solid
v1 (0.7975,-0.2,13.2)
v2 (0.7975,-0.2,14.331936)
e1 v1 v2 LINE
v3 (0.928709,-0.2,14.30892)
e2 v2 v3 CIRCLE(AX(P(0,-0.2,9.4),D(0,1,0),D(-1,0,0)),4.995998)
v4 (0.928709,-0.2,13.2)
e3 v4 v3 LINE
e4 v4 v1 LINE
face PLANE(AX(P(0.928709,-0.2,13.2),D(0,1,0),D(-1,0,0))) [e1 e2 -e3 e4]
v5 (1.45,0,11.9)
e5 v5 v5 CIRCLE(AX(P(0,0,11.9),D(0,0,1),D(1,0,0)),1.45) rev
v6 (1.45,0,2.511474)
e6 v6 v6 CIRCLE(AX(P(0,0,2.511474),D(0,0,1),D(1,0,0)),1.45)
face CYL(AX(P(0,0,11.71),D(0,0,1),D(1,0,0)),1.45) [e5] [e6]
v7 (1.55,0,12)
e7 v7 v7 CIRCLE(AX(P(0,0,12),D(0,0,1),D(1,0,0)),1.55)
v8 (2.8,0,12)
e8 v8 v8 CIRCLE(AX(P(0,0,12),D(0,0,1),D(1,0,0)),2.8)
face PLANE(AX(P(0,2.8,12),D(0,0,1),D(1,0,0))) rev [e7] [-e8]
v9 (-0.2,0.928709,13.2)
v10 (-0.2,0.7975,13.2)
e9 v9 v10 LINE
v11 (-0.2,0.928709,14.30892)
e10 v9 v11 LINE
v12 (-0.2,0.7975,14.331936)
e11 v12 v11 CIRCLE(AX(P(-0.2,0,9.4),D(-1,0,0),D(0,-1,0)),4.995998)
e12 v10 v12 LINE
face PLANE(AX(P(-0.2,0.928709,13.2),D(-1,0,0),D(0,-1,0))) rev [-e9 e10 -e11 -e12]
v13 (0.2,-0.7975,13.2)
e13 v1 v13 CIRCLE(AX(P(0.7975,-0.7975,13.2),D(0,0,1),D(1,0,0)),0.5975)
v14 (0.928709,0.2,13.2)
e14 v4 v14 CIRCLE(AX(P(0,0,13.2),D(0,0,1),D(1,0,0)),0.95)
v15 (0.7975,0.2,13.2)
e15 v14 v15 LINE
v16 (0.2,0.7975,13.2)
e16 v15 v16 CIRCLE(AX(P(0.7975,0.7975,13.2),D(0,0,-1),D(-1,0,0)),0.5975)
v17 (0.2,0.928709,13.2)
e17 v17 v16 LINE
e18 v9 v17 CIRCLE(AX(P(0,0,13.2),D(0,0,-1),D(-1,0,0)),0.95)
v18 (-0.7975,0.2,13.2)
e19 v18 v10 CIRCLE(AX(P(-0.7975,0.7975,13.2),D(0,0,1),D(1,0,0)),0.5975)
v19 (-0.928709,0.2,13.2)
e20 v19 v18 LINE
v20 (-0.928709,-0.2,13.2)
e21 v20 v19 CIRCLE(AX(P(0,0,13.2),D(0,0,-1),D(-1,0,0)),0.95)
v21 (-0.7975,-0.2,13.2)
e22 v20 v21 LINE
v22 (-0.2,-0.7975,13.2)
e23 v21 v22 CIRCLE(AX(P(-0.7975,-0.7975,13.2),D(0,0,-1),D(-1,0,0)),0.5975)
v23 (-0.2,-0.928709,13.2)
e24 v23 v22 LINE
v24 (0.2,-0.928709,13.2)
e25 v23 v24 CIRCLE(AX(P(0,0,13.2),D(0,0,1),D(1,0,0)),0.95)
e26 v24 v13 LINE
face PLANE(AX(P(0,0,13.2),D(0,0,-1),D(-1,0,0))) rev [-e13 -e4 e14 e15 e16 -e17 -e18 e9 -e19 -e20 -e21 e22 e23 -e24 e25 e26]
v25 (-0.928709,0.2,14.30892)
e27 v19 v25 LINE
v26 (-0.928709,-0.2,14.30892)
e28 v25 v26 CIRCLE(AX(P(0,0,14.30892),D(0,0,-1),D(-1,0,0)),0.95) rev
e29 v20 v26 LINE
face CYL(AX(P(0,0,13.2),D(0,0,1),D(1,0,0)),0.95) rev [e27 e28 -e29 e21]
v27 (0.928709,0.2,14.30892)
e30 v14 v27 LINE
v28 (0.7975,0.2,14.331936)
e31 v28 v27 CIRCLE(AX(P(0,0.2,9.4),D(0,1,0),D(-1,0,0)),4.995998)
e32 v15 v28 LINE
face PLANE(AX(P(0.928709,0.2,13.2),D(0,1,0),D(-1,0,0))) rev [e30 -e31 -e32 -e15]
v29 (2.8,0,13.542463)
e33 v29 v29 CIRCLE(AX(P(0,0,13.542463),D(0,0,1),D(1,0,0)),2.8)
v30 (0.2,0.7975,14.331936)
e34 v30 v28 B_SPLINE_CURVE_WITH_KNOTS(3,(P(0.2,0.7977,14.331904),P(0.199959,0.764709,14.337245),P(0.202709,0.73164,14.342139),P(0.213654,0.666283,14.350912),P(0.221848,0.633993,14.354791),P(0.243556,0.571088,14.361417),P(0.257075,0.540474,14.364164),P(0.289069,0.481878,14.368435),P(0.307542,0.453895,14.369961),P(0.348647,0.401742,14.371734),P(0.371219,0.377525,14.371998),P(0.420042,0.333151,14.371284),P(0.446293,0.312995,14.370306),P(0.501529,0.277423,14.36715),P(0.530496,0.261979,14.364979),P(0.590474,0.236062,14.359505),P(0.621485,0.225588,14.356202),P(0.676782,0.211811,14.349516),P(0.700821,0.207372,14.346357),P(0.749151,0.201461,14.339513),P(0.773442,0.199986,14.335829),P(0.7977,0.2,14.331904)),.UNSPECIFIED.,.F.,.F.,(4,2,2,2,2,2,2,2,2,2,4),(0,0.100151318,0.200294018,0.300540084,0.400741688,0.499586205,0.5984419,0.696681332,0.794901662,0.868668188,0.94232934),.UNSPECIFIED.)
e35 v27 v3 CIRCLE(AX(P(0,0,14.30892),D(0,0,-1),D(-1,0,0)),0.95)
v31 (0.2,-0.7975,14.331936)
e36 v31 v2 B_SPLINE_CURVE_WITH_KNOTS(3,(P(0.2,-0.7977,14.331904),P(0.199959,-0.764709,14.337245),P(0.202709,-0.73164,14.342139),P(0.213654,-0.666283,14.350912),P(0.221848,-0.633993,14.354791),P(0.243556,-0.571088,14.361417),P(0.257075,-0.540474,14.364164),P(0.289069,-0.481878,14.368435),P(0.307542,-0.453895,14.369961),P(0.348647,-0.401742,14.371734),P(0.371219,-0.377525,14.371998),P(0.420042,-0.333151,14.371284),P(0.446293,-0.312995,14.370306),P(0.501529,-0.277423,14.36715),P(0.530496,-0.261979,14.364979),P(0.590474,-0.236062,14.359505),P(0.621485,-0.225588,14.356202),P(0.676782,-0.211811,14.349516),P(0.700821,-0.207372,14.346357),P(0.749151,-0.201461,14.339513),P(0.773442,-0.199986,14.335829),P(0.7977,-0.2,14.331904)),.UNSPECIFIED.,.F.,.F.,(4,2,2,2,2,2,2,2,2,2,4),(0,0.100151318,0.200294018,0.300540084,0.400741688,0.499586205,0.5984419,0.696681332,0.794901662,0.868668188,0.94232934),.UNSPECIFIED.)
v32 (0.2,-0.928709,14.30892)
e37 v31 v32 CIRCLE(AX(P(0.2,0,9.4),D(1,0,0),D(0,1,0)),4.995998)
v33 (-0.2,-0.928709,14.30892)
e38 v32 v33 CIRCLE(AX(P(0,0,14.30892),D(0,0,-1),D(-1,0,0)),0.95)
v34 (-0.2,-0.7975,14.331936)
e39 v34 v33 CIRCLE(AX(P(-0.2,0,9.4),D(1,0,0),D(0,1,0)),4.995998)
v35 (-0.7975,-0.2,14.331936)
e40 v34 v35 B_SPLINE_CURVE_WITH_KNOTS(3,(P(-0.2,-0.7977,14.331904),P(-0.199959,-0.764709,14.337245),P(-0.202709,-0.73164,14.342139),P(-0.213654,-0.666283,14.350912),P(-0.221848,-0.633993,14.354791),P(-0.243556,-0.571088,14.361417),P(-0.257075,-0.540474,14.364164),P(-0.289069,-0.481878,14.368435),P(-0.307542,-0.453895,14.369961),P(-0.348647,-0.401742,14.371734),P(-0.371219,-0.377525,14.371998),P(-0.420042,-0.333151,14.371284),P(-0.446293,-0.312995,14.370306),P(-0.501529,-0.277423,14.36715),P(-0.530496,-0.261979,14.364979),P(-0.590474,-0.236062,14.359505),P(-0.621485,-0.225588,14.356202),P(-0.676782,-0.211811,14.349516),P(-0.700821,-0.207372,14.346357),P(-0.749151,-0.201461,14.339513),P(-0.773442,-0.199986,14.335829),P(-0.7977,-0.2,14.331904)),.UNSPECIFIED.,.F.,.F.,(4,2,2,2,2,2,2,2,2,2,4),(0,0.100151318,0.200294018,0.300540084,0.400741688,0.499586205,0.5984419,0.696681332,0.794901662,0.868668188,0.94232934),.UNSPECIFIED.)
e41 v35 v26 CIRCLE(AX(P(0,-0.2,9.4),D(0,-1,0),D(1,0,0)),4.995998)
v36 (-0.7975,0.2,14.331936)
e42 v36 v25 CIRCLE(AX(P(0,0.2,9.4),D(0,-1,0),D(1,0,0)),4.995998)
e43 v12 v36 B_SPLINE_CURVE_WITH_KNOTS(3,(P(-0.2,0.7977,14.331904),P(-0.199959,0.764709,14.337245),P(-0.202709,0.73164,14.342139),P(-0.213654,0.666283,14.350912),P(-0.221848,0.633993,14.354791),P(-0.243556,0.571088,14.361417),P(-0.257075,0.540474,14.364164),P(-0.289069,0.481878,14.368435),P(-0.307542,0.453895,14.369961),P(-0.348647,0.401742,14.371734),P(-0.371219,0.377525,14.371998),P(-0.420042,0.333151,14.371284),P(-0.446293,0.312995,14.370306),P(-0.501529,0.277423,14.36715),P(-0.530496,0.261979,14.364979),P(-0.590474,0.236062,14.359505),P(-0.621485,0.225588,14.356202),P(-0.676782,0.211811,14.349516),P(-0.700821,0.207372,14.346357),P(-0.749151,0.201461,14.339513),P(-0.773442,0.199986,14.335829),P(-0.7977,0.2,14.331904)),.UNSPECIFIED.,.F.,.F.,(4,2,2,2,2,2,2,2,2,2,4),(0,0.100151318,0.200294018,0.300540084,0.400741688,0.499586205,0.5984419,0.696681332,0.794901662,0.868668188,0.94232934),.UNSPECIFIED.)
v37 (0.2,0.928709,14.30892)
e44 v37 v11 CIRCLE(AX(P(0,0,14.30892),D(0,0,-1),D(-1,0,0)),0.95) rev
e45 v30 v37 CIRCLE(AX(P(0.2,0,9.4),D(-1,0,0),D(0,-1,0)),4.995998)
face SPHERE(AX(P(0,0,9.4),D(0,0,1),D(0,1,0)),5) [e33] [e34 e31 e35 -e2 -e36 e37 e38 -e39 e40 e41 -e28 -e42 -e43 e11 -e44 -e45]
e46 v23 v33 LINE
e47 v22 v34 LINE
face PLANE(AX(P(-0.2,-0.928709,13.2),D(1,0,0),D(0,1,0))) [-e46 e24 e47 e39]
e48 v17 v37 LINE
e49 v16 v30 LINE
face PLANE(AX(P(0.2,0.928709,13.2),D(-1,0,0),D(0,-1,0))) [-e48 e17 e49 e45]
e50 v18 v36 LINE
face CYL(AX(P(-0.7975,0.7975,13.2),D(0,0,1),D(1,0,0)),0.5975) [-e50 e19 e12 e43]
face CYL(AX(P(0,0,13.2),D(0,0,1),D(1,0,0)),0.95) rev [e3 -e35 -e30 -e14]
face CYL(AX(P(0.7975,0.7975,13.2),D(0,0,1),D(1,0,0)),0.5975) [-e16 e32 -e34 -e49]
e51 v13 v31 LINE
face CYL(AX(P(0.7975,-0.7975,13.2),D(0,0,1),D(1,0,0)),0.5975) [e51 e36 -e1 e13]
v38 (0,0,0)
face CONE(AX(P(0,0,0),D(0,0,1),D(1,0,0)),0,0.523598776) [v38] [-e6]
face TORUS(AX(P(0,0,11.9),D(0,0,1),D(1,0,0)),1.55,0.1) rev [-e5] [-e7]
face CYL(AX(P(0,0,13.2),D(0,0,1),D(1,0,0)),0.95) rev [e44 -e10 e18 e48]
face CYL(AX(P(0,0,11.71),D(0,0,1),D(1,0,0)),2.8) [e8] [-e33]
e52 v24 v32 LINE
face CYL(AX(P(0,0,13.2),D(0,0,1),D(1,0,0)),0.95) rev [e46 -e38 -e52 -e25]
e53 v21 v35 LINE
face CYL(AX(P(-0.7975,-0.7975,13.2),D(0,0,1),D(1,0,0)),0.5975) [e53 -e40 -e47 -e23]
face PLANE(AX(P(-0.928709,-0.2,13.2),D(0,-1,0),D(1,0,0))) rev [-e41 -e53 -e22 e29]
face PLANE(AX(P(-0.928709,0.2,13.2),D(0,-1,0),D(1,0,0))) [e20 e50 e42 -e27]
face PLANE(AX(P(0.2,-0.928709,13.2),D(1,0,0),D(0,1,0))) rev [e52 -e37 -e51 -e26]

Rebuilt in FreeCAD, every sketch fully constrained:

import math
import FreeCAD as App
import Part
import Sketcher

V = App.Vector
Q = App.Units.Quantity


def edges_at(feature, points):
    """Names of the edges that pass closest to the given points."""
    edges = feature.Shape.Edges
    near = lambda p: min(range(len(edges)), key=lambda i: edges[i].distToShape(Part.Vertex(*p))[0])
    return sorted({f"Edge{near(p) + 1}" for p in points})

doc = App.newDocument("Part")
params = doc.addObject("Spreadsheet::Sheet", "Params")
for row, (alias, value) in enumerate([
    ("sketch1_radius", "5 mm"),
    ("sketch1_height", "14.4 mm"),
    ("sketch1_length", "2.9 mm"),
    ("sketch1_width", "1.35 mm"),
    ("revolution_angle", "360 deg"),
    ("sketch2_radius", "0.95 mm"),
    ("pocket1_length", "1.2 mm"),
    ("fillet_radius", "0.1 mm"),
], start=1):
    params.set(f"A{row}", alias)
    params.set(f"B{row}", "=" + value)
    params.setAlias(f"B{row}", alias)

body = doc.addObject("PartDesign::Body", "Body")

# Sketch on YZ plane
sketch1 = doc.addObject("Sketcher::SketchObject", "Sketch")
body.addObject(sketch1)
sketch1.AttachmentSupport = (doc.YZ_Plane, [""])
sketch1.MapMode = "FlatFace"
sketch1.addGeometry(Part.LineSegment(V(0, 14.4, 0), V(0, 0, 0)), False)
sketch1.addGeometry(Part.LineSegment(V(0, 0, 0), V(1.4, 2.5, 0)), False)
sketch1.addGeometry(Part.LineSegment(V(1.4, 2.5, 0), V(1.4, 12, 0)), False)
sketch1.addGeometry(Part.LineSegment(V(1.4, 12, 0), V(2.8, 12, 0)), False)
sketch1.addGeometry(Part.LineSegment(V(2.8, 12, 0), V(2.8, 13.5, 0)), False)
sketch1.addGeometry(Part.ArcOfCircle(Part.Circle(V(0, 9.4, 0), V(0, 0, 1), 5), math.radians(56), math.radians(90)), False)
sketch1.addConstraint(Sketcher.Constraint("Coincident", 0, 2, 1, 1))
sketch1.addConstraint(Sketcher.Constraint("Coincident", 1, 2, 2, 1))
sketch1.addConstraint(Sketcher.Constraint("Coincident", 2, 2, 3, 1))
sketch1.addConstraint(Sketcher.Constraint("Coincident", 3, 2, 4, 1))
sketch1.addConstraint(Sketcher.Constraint("Coincident", 4, 2, 5, 1))
sketch1.addConstraint(Sketcher.Constraint("Coincident", 5, 2, 0, 1))
sketch1.addConstraint(Sketcher.Constraint("Vertical", 0))
sketch1.addConstraint(Sketcher.Constraint("Vertical", 2))
sketch1.addConstraint(Sketcher.Constraint("Horizontal", 3))
sketch1.addConstraint(Sketcher.Constraint("Vertical", 4))
sketch1.addConstraint(Sketcher.Constraint("Coincident", 0, 2, -1, 1))
sketch1.addConstraint(Sketcher.Constraint("PointOnObject", 5, 3, -2))
sketch1.addConstraint(Sketcher.Constraint("Radius", 5, Q("5 mm")))
sketch1.addConstraint(Sketcher.Constraint("Angle", 1, Q("60 deg")))
sketch1.addConstraint(Sketcher.Constraint("DistanceY", 0, 2, 0, 1, Q("14.4 mm")))
sketch1.addConstraint(Sketcher.Constraint("DistanceY", -1, 1, 2, 2, Q("12 mm")))
sketch1.addConstraint(Sketcher.Constraint("Distance", 1, Q("2.9 mm")))
sketch1.addConstraint(Sketcher.Constraint("DistanceX", 3, 1, 3, 2, Q("1.35 mm")))
sketch1.setExpression("Constraints[12]", "Params.sketch1_radius")
sketch1.setExpression("Constraints[14]", "Params.sketch1_height")
sketch1.setExpression("Constraints[16]", "Params.sketch1_length")
sketch1.setExpression("Constraints[17]", "Params.sketch1_width")
revolution = doc.addObject("PartDesign::Revolution", "Revolution")
body.addObject(revolution)
revolution.Profile = sketch1
revolution.ReferenceAxis = (sketch1, ["V_Axis"])
revolution.setExpression("Angle", "Params.revolution_angle")

# Sketch on XY plane
sketch2 = doc.addObject("Sketcher::SketchObject", "Sketch001")
body.addObject(sketch2)
sketch2.AttachmentSupport = (doc.XY_Plane, [""])
sketch2.MapMode = "FlatFace"
sketch2.AttachmentOffset = App.Placement(V(0, 0, 14.4), App.Rotation())
sketch2.addGeometry(Part.LineSegment(V(0.2, 0.8, 0), V(0.2, 0.93, 0)), False)
sketch2.addGeometry(Part.ArcOfCircle(Part.Circle(V(0, 0, 0), V(0, 0, 1), 0.95), math.radians(78), math.radians(102)), False)
sketch2.addGeometry(Part.LineSegment(V(-0.2, 0.93, 0), V(-0.2, 0.8, 0)), False)
sketch2.addGeometry(Part.ArcOfCircle(Part.Circle(V(-0.8, 0.8, 0), V(0, 0, 1), 0.6), math.radians(-90), math.radians(0)), False)
sketch2.addGeometry(Part.LineSegment(V(-0.8, 0.2, 0), V(-0.93, 0.2, 0)), False)
sketch2.addGeometry(Part.ArcOfCircle(Part.Circle(V(0, 0, 0), V(0, 0, 1), 0.95), math.radians(168), math.radians(192)), False)
sketch2.addGeometry(Part.LineSegment(V(-0.93, -0.2, 0), V(-0.8, -0.2, 0)), False)
sketch2.addGeometry(Part.ArcOfCircle(Part.Circle(V(-0.8, -0.8, 0), V(0, 0, 1), 0.6), math.radians(0), math.radians(90)), False)
sketch2.addGeometry(Part.LineSegment(V(-0.2, -0.8, 0), V(-0.2, -0.93, 0)), False)
sketch2.addGeometry(Part.ArcOfCircle(Part.Circle(V(0, 0, 0), V(0, 0, 1), 0.95), math.radians(-102), math.radians(-78)), False)
sketch2.addGeometry(Part.LineSegment(V(0.2, -0.93, 0), V(0.2, -0.8, 0)), False)
sketch2.addGeometry(Part.ArcOfCircle(Part.Circle(V(0.8, -0.8, 0), V(0, 0, 1), 0.6), math.radians(90), math.radians(180)), False)
sketch2.addGeometry(Part.LineSegment(V(0.8, -0.2, 0), V(0.93, -0.2, 0)), False)
sketch2.addGeometry(Part.ArcOfCircle(Part.Circle(V(0, 0, 0), V(0, 0, 1), 0.95), math.radians(-12), math.radians(12)), False)
sketch2.addGeometry(Part.LineSegment(V(0.93, 0.2, 0), V(0.8, 0.2, 0)), False)
sketch2.addGeometry(Part.ArcOfCircle(Part.Circle(V(0.8, 0.8, 0), V(0, 0, 1), 0.6), math.radians(180), math.radians(270)), False)
sketch2.addConstraint(Sketcher.Constraint("Coincident", 0, 2, 1, 1))
sketch2.addConstraint(Sketcher.Constraint("Coincident", 1, 2, 2, 1))
sketch2.addConstraint(Sketcher.Constraint("Tangent", 2, 2, 3, 2))
sketch2.addConstraint(Sketcher.Constraint("Tangent", 3, 1, 4, 1))
sketch2.addConstraint(Sketcher.Constraint("Coincident", 4, 2, 5, 1))
sketch2.addConstraint(Sketcher.Constraint("Coincident", 5, 2, 6, 1))
sketch2.addConstraint(Sketcher.Constraint("Tangent", 6, 2, 7, 2))
sketch2.addConstraint(Sketcher.Constraint("Tangent", 7, 1, 8, 1))
sketch2.addConstraint(Sketcher.Constraint("Coincident", 8, 2, 9, 1))
sketch2.addConstraint(Sketcher.Constraint("Coincident", 9, 2, 10, 1))
sketch2.addConstraint(Sketcher.Constraint("Tangent", 10, 2, 11, 2))
sketch2.addConstraint(Sketcher.Constraint("Tangent", 11, 1, 12, 1))
sketch2.addConstraint(Sketcher.Constraint("Coincident", 12, 2, 13, 1))
sketch2.addConstraint(Sketcher.Constraint("Coincident", 13, 2, 14, 1))
sketch2.addConstraint(Sketcher.Constraint("Tangent", 14, 2, 15, 2))
sketch2.addConstraint(Sketcher.Constraint("Tangent", 15, 1, 0, 1))
sketch2.addConstraint(Sketcher.Constraint("Vertical", 0))
sketch2.addConstraint(Sketcher.Constraint("Vertical", 2))
sketch2.addConstraint(Sketcher.Constraint("Horizontal", 4))
sketch2.addConstraint(Sketcher.Constraint("Horizontal", 6))
sketch2.addConstraint(Sketcher.Constraint("Vertical", 8))
sketch2.addConstraint(Sketcher.Constraint("Vertical", 10))
sketch2.addConstraint(Sketcher.Constraint("Horizontal", 12))
sketch2.addConstraint(Sketcher.Constraint("Horizontal", 14))
sketch2.addConstraint(Sketcher.Constraint("Coincident", 1, 3, -1, 1))
sketch2.addConstraint(Sketcher.Constraint("Coincident", 5, 3, -1, 1))
sketch2.addConstraint(Sketcher.Constraint("Coincident", 9, 3, -1, 1))
sketch2.addConstraint(Sketcher.Constraint("Coincident", 13, 3, -1, 1))
sketch2.addConstraint(Sketcher.Constraint("Equal", 1, 5))
sketch2.addConstraint(Sketcher.Constraint("Equal", 3, 7))
sketch2.addConstraint(Sketcher.Constraint("Equal", 5, 9))
sketch2.addConstraint(Sketcher.Constraint("Equal", 7, 11))
sketch2.addConstraint(Sketcher.Constraint("Equal", 9, 13))
sketch2.addConstraint(Sketcher.Constraint("Equal", 11, 15))
sketch2.addConstraint(Sketcher.Constraint("Symmetric", 3, 3, 11, 3, -1, 1))
sketch2.addConstraint(Sketcher.Constraint("Symmetric", 7, 3, 15, 3, -1, 1))
sketch2.addConstraint(Sketcher.Constraint("Symmetric", 7, 3, 11, 3, -2))
sketch2.addConstraint(Sketcher.Constraint("Equal", 14, 0))
sketch2.addConstraint(Sketcher.Constraint("Radius", 1, Q("0.95 mm")))
sketch2.addConstraint(Sketcher.Constraint("DistanceX", -1, 1, 0, 2, Q("0.2 mm")))
sketch2.addConstraint(Sketcher.Constraint("Radius", 3, Q("0.5975 mm")))
sketch2.setExpression("Constraints[38]", "Params.sketch2_radius")
pocket1 = doc.addObject("PartDesign::Pocket", "Pocket")
body.addObject(pocket1)
pocket1.Profile = sketch2
pocket1.setExpression("Length", "Params.pocket1_length")
doc.recompute()

fillet = doc.addObject("PartDesign::Fillet", "Fillet")
body.addObject(fillet)
fillet.Base = (pocket1, edges_at(pocket1, [(0, -1.45, 12)]))
fillet.setExpression("Radius", "Params.fillet_radius")

doc.recompute()
